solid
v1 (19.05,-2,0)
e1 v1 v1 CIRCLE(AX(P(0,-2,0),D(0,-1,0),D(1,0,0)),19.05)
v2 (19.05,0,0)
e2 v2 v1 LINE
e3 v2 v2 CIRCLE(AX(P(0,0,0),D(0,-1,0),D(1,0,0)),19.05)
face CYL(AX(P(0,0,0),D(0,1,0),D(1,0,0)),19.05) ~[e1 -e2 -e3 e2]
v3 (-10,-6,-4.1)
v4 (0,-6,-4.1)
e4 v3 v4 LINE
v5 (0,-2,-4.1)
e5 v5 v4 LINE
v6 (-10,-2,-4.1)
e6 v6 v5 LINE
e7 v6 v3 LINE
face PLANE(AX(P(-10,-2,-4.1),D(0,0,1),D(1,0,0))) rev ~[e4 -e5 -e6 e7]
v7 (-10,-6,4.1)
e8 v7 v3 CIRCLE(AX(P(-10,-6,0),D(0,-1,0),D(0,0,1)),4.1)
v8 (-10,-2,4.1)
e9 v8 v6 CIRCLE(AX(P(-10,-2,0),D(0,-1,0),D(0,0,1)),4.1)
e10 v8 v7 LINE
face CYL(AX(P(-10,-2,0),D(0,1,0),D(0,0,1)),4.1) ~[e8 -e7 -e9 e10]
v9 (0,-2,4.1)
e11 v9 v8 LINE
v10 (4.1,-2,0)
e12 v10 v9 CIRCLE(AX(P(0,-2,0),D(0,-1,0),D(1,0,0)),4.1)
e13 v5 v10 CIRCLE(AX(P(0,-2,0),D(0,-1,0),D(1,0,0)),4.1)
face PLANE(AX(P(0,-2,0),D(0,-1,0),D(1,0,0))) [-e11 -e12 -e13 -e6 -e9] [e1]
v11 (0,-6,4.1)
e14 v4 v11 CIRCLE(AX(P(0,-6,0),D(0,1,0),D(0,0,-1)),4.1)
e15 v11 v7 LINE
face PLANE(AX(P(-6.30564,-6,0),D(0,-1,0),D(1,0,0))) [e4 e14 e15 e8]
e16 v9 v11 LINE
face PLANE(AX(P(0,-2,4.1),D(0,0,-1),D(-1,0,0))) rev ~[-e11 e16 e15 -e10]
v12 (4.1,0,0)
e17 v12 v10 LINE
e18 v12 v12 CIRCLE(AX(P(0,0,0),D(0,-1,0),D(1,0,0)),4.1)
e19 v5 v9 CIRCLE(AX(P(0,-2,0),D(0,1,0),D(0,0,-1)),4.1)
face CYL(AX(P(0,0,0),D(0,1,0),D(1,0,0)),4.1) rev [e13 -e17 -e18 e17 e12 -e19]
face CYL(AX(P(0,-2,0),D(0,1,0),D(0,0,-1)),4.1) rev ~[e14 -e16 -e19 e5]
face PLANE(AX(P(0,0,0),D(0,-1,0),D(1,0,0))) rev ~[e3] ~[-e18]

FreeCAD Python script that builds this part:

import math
import FreeCAD as App
import Part
import Sketcher

V = App.Vector

doc = App.newDocument("Part")
body = doc.addObject("PartDesign::Body", "Body")

# Sketch on XZ plane
sketch1 = body.newObject("Sketcher::SketchObject", "Sketch")
sketch1.AttachmentSupport = (doc.getObject("XZ_Plane"), [""])
sketch1.MapMode = "FlatFace"
sketch1.addGeometry(Part.Circle(V(0, 0, 0), V(0, 0, 1), 19.1), False)
sketch1.addGeometry(Part.Circle(V(0, 0, 0), V(0, 0, 1), 4.1), False)
sketch1.addConstraint(Sketcher.Constraint("Coincident", 0, 3, -1, 1))
sketch1.addConstraint(Sketcher.Constraint("Coincident", 1, 3, -1, 1))
sketch1.addConstraint(Sketcher.Constraint("Diameter", 0, 38.1))
sketch1.addConstraint(Sketcher.Constraint("Diameter", 1, 8.2))
pad1 = body.newObject("PartDesign::Pad", "Pad")
pad1.Profile = sketch1
pad1.Length = 2

# Sketch on XZ plane
sketch2 = body.newObject("Sketcher::SketchObject", "Sketch001")
sketch2.AttachmentSupport = (doc.getObject("XZ_Plane"), [""])
sketch2.MapMode = "FlatFace"
sketch2.AttachmentOffset = App.Placement(V(0, 0, 2), App.Rotation())
sketch2.addGeometry(Part.LineSegment(V(-10, -4.1, 0), V(0, -4.1, 0)), False)
sketch2.addGeometry(Part.ArcOfCircle(Part.Circle(V(0, 0, 0), V(0, 0, 1), 4.1), math.radians(90), math.radians(270)), False)
sketch2.addGeometry(Part.LineSegment(V(0, 4.1, 0), V(-10, 4.1, 0)), False)
sketch2.addGeometry(Part.ArcOfCircle(Part.Circle(V(-10, 0, 0), V(0, 0, 1), 4.1), math.radians(90), math.radians(270)), False)
sketch2.addConstraint(Sketcher.Constraint("Tangent", 0, 2, 1, 2))
sketch2.addConstraint(Sketcher.Constraint("Tangent", 1, 1, 2, 1))
sketch2.addConstraint(Sketcher.Constraint("Tangent", 2, 2, 3, 1))
sketch2.addConstraint(Sketcher.Constraint("Tangent", 3, 2, 0, 1))
sketch2.addConstraint(Sketcher.Constraint("Horizontal", 0))
sketch2.addConstraint(Sketcher.Constraint("Horizontal", 2))
sketch2.addConstraint(Sketcher.Constraint("Coincident", 1, 3, -1, 1))
sketch2.addConstraint(Sketcher.Constraint("Radius", 1, 4.1))
sketch2.addConstraint(Sketcher.Constraint("DistanceX", 0, 1, 0, 2, 10.0))
pad2 = body.newObject("PartDesign::Pad", "Pad001")
pad2.Profile = sketch2
pad2.Length = 4

doc.recompute()
